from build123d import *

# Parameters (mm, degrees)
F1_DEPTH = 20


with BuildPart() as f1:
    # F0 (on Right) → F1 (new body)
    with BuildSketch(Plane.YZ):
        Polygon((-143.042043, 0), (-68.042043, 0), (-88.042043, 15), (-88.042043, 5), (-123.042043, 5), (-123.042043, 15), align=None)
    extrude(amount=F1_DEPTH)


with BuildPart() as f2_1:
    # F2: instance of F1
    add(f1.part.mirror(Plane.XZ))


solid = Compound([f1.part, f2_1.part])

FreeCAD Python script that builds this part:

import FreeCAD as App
import Part
import Sketcher
Q = App.Units.Quantity


def add_polygon(sketch, points):
    """Adds a closed chain of lines whose ends are joined by coincident constraints."""
    first, n = sketch.GeometryCount, len(points)
    for a, b in zip(points, points[1:] + points[:1]):
        sketch.addGeometry(Part.LineSegment(App.Vector(*a, 0), App.Vector(*b, 0)), False)
    for i in range(n):
        sketch.addConstraint(Sketcher.Constraint("Coincident", first + i, 2, first + (i + 1) % n, 1))

doc = App.newDocument("Part")
body = doc.addObject("PartDesign::Body", "Body")

# Sketch on YZ plane
sketch1 = doc.addObject("Sketcher::SketchObject", "Sketch")
body.addObject(sketch1)
sketch1.AttachmentSupport = (doc.YZ_Plane, [""])
sketch1.MapMode = "FlatFace"
add_polygon(sketch1, [(-143.042043, 0), (-68.042043, 0), (-88.042043, 15), (-88.042043, 5), (-123.042043, 5), (-123.042043, 15)])  # lines 0-5
sketch1.addConstraint([
    Sketcher.Constraint("Horizontal", 0),
    Sketcher.Constraint("Vertical", 2),
    Sketcher.Constraint("Horizontal", 3),
    Sketcher.Constraint("Vertical", 4),
    Sketcher.Constraint("PointOnObject", 0, 2, -1),
    Sketcher.Constraint("Horizontal", 1, 2, 4, 2),
    Sketcher.Constraint("Equal", 1, 5),
    Sketcher.Constraint("DistanceX", 0, 1, 0, 2, Q("75 mm")),
    Sketcher.Constraint("DistanceX", 3, 2, 3, 1, Q("35 mm")),
    Sketcher.Constraint("DistanceY", 2, 2, 2, 1, Q("10 mm")),
    Sketcher.Constraint("Distance", 1, Q("25 mm")),
    Sketcher.Constraint("DistanceX", 0, 2, -1, 1, Q("68.042043 mm")),
])
pad1 = doc.addObject("PartDesign::Pad", "Pad")
body.addObject(pad1)
pad1.Profile = sketch1
pad1.Length = 20
body2 = doc.addObject("PartDesign::Body", "Body001")
doc.recompute()

mirroring = doc.addObject("Part::Mirroring", "Mirroring")
mirroring.Source = body
mirroring.Base = App.Vector(0, 0, 0)
mirroring.Normal = App.Vector(0, -1, 0)
body2.BaseFeature = mirroring
doc.recompute()
mirroring.Visibility = False

doc.recompute()
